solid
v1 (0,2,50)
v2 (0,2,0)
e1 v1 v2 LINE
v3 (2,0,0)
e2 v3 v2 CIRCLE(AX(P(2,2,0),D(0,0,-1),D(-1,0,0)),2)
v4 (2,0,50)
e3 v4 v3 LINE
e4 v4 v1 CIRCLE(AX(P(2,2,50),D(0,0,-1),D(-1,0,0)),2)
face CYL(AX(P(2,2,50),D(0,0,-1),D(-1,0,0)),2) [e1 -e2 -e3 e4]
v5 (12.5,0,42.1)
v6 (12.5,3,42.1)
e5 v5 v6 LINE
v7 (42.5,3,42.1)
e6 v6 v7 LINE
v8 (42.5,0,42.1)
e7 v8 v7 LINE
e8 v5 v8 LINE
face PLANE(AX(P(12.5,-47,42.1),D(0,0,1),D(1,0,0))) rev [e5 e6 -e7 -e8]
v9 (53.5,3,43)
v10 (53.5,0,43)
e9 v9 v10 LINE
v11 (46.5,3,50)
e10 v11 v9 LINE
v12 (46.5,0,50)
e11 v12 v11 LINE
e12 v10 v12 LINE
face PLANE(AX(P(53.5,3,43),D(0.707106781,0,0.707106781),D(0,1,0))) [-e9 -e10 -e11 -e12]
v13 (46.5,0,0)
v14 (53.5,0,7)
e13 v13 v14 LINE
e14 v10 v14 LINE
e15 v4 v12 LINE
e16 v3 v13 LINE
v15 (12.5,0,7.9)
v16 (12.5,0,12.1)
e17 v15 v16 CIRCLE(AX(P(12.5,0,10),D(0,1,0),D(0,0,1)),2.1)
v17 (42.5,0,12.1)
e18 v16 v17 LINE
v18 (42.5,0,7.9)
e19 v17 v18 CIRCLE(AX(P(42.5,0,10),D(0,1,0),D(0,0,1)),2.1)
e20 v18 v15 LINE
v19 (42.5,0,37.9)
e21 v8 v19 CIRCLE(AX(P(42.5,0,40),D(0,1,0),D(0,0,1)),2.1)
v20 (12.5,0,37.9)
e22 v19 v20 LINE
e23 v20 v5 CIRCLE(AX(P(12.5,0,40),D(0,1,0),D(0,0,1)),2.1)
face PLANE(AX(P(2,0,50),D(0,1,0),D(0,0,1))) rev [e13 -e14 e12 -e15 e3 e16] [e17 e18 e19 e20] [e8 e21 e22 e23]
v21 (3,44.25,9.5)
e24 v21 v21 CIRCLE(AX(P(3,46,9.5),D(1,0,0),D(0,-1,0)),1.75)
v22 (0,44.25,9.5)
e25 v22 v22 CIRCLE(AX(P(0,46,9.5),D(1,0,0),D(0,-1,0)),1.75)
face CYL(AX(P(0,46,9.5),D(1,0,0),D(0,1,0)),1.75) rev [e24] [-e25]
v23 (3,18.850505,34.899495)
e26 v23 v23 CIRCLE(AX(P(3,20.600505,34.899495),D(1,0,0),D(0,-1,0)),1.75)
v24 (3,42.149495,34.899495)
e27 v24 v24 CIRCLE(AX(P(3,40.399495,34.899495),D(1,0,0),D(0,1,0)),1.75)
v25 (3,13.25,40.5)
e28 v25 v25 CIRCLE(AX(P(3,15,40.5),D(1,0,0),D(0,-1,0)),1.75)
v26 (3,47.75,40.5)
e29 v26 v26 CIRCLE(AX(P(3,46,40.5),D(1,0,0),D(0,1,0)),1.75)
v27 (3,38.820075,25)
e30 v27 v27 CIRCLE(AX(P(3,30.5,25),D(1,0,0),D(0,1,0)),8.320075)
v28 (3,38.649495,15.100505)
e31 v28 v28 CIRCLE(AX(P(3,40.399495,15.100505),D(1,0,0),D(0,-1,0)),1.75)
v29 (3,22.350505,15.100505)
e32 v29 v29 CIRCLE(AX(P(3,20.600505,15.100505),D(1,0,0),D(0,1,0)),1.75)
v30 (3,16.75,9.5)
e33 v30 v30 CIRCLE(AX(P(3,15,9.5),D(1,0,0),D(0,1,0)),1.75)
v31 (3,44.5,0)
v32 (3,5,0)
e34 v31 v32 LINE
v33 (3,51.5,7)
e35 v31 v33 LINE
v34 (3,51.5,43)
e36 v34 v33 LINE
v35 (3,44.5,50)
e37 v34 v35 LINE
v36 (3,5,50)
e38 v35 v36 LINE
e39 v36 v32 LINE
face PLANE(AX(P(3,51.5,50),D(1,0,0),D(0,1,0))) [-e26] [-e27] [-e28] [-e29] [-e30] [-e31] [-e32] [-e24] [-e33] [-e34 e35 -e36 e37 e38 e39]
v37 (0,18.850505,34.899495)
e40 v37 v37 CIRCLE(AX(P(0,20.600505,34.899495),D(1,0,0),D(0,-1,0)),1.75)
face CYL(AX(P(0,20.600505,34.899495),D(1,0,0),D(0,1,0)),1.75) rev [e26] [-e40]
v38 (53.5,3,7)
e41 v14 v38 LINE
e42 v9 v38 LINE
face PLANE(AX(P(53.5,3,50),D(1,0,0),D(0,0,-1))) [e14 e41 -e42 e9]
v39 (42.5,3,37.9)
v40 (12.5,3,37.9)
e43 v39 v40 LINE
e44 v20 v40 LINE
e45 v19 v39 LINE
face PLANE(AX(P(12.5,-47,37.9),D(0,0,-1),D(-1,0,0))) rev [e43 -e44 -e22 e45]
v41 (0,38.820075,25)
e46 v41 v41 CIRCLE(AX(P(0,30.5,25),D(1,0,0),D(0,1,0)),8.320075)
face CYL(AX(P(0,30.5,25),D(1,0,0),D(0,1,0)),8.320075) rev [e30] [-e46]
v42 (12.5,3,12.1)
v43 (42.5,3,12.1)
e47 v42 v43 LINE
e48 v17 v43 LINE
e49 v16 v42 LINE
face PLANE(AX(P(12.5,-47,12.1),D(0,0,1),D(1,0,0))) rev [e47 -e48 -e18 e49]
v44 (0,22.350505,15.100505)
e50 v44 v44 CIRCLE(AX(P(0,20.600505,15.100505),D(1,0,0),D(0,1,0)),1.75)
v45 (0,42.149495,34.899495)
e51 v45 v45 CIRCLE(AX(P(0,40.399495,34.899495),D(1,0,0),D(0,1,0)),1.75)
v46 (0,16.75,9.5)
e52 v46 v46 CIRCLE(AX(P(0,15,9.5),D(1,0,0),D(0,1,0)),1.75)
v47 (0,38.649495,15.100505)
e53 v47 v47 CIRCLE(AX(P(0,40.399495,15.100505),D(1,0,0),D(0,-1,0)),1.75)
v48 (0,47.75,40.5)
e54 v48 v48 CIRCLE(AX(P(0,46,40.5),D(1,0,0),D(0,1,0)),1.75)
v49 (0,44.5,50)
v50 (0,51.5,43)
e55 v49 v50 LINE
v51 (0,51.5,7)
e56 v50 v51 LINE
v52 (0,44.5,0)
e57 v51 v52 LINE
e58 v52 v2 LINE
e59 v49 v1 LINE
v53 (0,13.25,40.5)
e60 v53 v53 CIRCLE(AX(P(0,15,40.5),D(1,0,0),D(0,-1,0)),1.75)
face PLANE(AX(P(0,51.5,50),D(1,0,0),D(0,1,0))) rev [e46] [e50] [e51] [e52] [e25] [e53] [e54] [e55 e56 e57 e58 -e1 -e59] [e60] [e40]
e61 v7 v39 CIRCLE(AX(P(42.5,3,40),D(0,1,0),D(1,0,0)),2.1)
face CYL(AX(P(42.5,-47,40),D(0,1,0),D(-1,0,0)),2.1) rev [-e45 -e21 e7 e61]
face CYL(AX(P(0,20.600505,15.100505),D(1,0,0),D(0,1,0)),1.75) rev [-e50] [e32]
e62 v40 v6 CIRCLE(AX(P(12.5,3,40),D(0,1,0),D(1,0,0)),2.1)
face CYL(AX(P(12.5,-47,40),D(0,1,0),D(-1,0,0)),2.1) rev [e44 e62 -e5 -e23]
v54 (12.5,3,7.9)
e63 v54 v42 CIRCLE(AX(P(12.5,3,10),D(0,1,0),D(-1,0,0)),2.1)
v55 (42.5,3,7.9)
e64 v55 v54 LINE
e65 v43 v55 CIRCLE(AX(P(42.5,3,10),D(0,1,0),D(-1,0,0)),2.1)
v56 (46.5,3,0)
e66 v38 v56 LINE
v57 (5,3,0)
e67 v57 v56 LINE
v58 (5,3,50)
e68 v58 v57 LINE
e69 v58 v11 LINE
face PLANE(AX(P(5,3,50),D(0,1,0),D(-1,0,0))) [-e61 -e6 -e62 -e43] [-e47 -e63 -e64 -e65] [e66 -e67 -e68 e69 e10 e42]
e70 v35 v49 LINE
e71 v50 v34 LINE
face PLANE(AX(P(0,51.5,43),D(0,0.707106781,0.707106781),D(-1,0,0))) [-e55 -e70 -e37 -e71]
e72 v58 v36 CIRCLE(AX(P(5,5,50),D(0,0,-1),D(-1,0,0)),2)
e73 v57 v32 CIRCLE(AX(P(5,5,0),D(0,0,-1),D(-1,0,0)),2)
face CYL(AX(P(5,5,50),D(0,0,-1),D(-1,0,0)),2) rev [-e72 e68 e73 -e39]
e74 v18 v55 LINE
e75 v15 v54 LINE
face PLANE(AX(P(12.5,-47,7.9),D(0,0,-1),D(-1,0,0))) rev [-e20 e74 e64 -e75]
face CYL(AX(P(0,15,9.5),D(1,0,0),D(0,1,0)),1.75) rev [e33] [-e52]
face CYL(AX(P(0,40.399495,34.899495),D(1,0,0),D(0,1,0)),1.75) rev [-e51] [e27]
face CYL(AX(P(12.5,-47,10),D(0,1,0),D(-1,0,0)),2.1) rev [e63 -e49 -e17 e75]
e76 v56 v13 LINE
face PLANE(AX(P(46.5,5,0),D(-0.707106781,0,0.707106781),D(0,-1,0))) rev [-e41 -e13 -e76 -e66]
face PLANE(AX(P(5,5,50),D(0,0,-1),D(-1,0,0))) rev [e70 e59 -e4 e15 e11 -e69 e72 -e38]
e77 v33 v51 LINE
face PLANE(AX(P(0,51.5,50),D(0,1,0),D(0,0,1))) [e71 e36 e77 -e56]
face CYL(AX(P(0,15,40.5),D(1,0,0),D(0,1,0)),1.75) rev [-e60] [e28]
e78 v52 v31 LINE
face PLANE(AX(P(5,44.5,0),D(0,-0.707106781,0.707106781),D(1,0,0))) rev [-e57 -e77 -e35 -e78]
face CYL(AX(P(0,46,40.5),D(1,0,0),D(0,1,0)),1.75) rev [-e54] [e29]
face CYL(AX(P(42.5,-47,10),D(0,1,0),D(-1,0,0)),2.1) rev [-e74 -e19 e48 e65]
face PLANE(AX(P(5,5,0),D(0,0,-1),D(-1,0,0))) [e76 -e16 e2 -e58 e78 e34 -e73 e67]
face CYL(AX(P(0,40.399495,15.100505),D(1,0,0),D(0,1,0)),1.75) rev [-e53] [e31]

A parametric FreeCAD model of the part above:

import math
import FreeCAD as App
import Part
import Sketcher
from FreeCAD import Vector
Q = App.Units.Quantity


def edges_at(feature, points):
    """Names of the edges that pass closest to the given points."""
    edges = feature.Shape.Edges
    near = lambda p: min(range(len(edges)), key=lambda i: edges[i].distToShape(Part.Vertex(*p))[0])
    return sorted({f"Edge{near(p) + 1}" for p in points})

doc = App.newDocument("Part")
body = doc.addObject("PartDesign::Body", "Body")

# Sketch on XY plane
sketch1 = body.newObject("Sketcher::SketchObject", "Sketch")
sketch1.AttachmentSupport = (doc.getObject("XY_Plane"), [""])
sketch1.MapMode = "FlatFace"
sketch1.addGeometry([
    Part.LineSegment(Vector(0, 51.5, 0), Vector(0, 2, 0)),  # 0
    Part.ArcOfCircle(Part.Circle(Vector(2, 2, 0), Vector(0, 0, 1), 2), math.radians(-180), math.radians(-90)),  # 1
    Part.LineSegment(Vector(2, 0, 0), Vector(53.5, 0, 0)),  # 2
    Part.LineSegment(Vector(53.5, 0, 0), Vector(53.5, 3, 0)),  # 3
    Part.LineSegment(Vector(53.5, 3, 0), Vector(5, 3, 0)),  # 4
    Part.ArcOfCircle(Part.Circle(Vector(5, 5, 0), Vector(0, 0, 1), 2), math.radians(-180), math.radians(-90)),  # 5
    Part.LineSegment(Vector(3, 5, 0), Vector(3, 51.5, 0)),  # 6
    Part.LineSegment(Vector(3, 51.5, 0), Vector(0, 51.5, 0)),  # 7
], False)
sketch1.addConstraint([
    Sketcher.Constraint("Tangent", 0, 2, 1, 1),
    Sketcher.Constraint("Tangent", 1, 2, 2, 1),
    Sketcher.Constraint("Coincident", 2, 2, 3, 1),
    Sketcher.Constraint("Coincident", 3, 2, 4, 1),
    Sketcher.Constraint("Tangent", 4, 2, 5, 2),
    Sketcher.Constraint("Tangent", 5, 1, 6, 1),
    Sketcher.Constraint("Coincident", 6, 2, 7, 1),
    Sketcher.Constraint("Coincident", 7, 2, 0, 1),
    Sketcher.Constraint("Vertical", 0),
    Sketcher.Constraint("Horizontal", 2),
    Sketcher.Constraint("Vertical", 3),
    Sketcher.Constraint("Horizontal", 4),
    Sketcher.Constraint("Vertical", 6),
    Sketcher.Constraint("Horizontal", 7),
    Sketcher.Constraint("Equal", 1, 5),
    Sketcher.Constraint("PointOnObject", 0, 2, -2),
    Sketcher.Constraint("PointOnObject", 1, 2, -1),
    Sketcher.Constraint("Equal", 7, 3),
    Sketcher.Constraint("Radius", 1, Q("2 mm")),
    Sketcher.Constraint("DistanceX", 7, 2, 7, 1, Q("3 mm")),
    Sketcher.Constraint("DistanceX", 2, 1, 2, 2, Q("51.5 mm")),
    Sketcher.Constraint("DistanceY", 0, 2, 0, 1, Q("49.5 mm")),
])
pad1 = body.newObject("PartDesign::Pad", "Pad")
pad1.Profile = sketch1
pad1.Length = 50

# Sketch on YZ plane
sketch2 = body.newObject("Sketcher::SketchObject", "Sketch001")
sketch2.AttachmentSupport = (doc.getObject("YZ_Plane"), [""])
sketch2.MapMode = "FlatFace"
sketch2.AttachmentOffset = App.Placement(Vector(0, 0, 3), App.Rotation())
sketch2.addGeometry([
    Part.Circle(Vector(30.5, 25, 0), Vector(0, 0, 1), 8.320075),  # 0
    Part.Circle(Vector(40.399495, 34.899495, 0), Vector(0, 0, 1), 1.75),  # 1
    Part.Circle(Vector(40.399495, 15.100505, 0), Vector(0, 0, 1), 1.75),  # 2
    Part.Circle(Vector(20.600505, 15.100505, 0), Vector(0, 0, 1), 1.75),  # 3
    Part.Circle(Vector(20.600505, 34.899495, 0), Vector(0, 0, 1), 1.75),  # 4
    Part.Circle(Vector(46, 40.5, 0), Vector(0, 0, 1), 1.75),  # 5
    Part.Circle(Vector(46, 9.5, 0), Vector(0, 0, 1), 1.75),  # 6
    Part.Circle(Vector(15, 40.5, 0), Vector(0, 0, 1), 1.75),  # 7
    Part.Circle(Vector(15, 9.5, 0), Vector(0, 0, 1), 1.75),  # 8
], False)
sketch2.addConstraint([
    Sketcher.Constraint("Equal", 1, 2),
    Sketcher.Constraint("Equal", 2, 3),
    Sketcher.Constraint("Equal", 3, 4),
    Sketcher.Constraint("Equal", 4, 5),
    Sketcher.Constraint("Equal", 5, 6),
    Sketcher.Constraint("Equal", 6, 7),
    Sketcher.Constraint("Equal", 7, 8),
    Sketcher.Constraint("Horizontal", 2, 3, 3, 3),
    Sketcher.Constraint("Horizontal", 1, 3, 4, 3),
    Sketcher.Constraint("Horizontal", 5, 3, 7, 3),
    Sketcher.Constraint("Horizontal", 6, 3, 8, 3),
    Sketcher.Constraint("Vertical", 1, 3, 2, 3),
    Sketcher.Constraint("Vertical", 3, 3, 4, 3),
    Sketcher.Constraint("Vertical", 5, 3, 6, 3),
    Sketcher.Constraint("Vertical", 7, 3, 8, 3),
    Sketcher.Constraint("Diameter", 1, Q("3.5 mm")),
    Sketcher.Constraint("DistanceY", -1, 1, 0, 3, Q("25 mm")),
    Sketcher.Constraint("DistanceX", -1, 1, 5, 3, Q("46 mm")),
    Sketcher.Constraint("DistanceX", -1, 1, 7, 3, Q("15 mm")),
    Sketcher.Constraint("DistanceY", 6, 3, 5, 3, Q("31 mm")),
    Sketcher.Constraint("DistanceX", -1, 1, 0, 3, Q("30.5 mm")),
    Sketcher.Constraint("DistanceY", -1, 1, 5, 3, Q("40.5 mm")),
    Sketcher.Constraint("Diameter", 0, Q("16.64015 mm")),
    Sketcher.Constraint("DistanceY", 2, 3, 1, 3, Q("19.79899 mm")),
    Sketcher.Constraint("DistanceX", 3, 3, 2, 3, Q("19.79899 mm")),
    Sketcher.Constraint("DistanceX", -1, 1, 1, 3, Q("40.399495 mm")),
    Sketcher.Constraint("DistanceY", -1, 1, 1, 3, Q("34.899495 mm")),
])
pocket1 = body.newObject("PartDesign::Pocket", "Pocket")
pocket1.Profile = sketch2
pocket1.Type = "ThroughAll"
doc.recompute()

chamfer = body.newObject("PartDesign::Chamfer", "Chamfer")
chamfer.Base = (pocket1, edges_at(pocket1, [(1.5, 51.5, 0)]))
chamfer.Size = 7
doc.recompute()

chamfer2 = body.newObject("PartDesign::Chamfer", "Chamfer001")
chamfer2.Base = (chamfer, edges_at(chamfer, [(53.5, 1.5, 50), (1.5, 51.5, 50), (53.5, 1.5, 0)]))
chamfer2.Size = 7

# Sketch on XZ plane
sketch3 = body.newObject("Sketcher::SketchObject", "Sketch002")
sketch3.AttachmentSupport = (doc.getObject("XZ_Plane"), [""])
sketch3.MapMode = "FlatFace"
sketch3.AttachmentOffset = App.Placement(Vector(0, 0, -3), App.Rotation())
sketch3.addGeometry([
    Part.LineSegment(Vector(42.5, 7.9, 0), Vector(12.5, 7.9, 0)),  # 0
    Part.ArcOfCircle(Part.Circle(Vector(12.5, 10, 0), Vector(0, 0, 1), 2.1), math.radians(90), math.radians(270)),  # 1
    Part.LineSegment(Vector(12.5, 12.1, 0), Vector(42.5, 12.1, 0)),  # 2
    Part.ArcOfCircle(Part.Circle(Vector(42.5, 10, 0), Vector(0, 0, 1), 2.1), math.radians(-90), math.radians(90)),  # 3
    Part.LineSegment(Vector(12.5, 42.1, 0), Vector(42.5, 42.1, 0)),  # 4
    Part.ArcOfCircle(Part.Circle(Vector(42.5, 40, 0), Vector(0, 0, 1), 2.1), math.radians(-90), math.radians(90)),  # 5
    Part.LineSegment(Vector(42.5, 37.9, 0), Vector(12.5, 37.9, 0)),  # 6
    Part.ArcOfCircle(Part.Circle(Vector(12.5, 40, 0), Vector(0, 0, 1), 2.1), math.radians(90), math.radians(270)),  # 7
], False)
sketch3.addConstraint([
    Sketcher.Constraint("Tangent", 0, 2, 1, 2),
    Sketcher.Constraint("Tangent", 1, 1, 2, 1),
    Sketcher.Constraint("Tangent", 2, 2, 3, 2),
    Sketcher.Constraint("Tangent", 3, 1, 0, 1),
    Sketcher.Constraint("Tangent", 4, 2, 5, 2),
    Sketcher.Constraint("Tangent", 5, 1, 6, 1),
    Sketcher.Constraint("Tangent", 6, 2, 7, 2),
    Sketcher.Constraint("Tangent", 7, 1, 4, 1),
    Sketcher.Constraint("Horizontal", 0),
    Sketcher.Constraint("Horizontal", 2),
    Sketcher.Constraint("Horizontal", 4),
    Sketcher.Constraint("Horizontal", 6),
    Sketcher.Constraint("Equal", 3, 5),
    Sketcher.Constraint("Vertical", 3, 3, 5, 3),
    Sketcher.Constraint("Vertical", 1, 3, 7, 3),
    Sketcher.Constraint("Radius", 1, Q("2.1 mm")),
    Sketcher.Constraint("DistanceX", 0, 2, 0, 1, Q("30 mm")),
    Sketcher.Constraint("DistanceY", -1, 1, 1, 3, Q("10 mm")),
    Sketcher.Constraint("DistanceY", -1, 1, 5, 3, Q("40 mm")),
    Sketcher.Constraint("DistanceX", -1, 1, 1, 3, Q("12.5 mm")),
])
pocket2 = body.newObject("PartDesign::Pocket", "Pocket001")
pocket2.Profile = sketch3
pocket2.Length = 50
pocket2.Reversed = True

doc.recompute()
